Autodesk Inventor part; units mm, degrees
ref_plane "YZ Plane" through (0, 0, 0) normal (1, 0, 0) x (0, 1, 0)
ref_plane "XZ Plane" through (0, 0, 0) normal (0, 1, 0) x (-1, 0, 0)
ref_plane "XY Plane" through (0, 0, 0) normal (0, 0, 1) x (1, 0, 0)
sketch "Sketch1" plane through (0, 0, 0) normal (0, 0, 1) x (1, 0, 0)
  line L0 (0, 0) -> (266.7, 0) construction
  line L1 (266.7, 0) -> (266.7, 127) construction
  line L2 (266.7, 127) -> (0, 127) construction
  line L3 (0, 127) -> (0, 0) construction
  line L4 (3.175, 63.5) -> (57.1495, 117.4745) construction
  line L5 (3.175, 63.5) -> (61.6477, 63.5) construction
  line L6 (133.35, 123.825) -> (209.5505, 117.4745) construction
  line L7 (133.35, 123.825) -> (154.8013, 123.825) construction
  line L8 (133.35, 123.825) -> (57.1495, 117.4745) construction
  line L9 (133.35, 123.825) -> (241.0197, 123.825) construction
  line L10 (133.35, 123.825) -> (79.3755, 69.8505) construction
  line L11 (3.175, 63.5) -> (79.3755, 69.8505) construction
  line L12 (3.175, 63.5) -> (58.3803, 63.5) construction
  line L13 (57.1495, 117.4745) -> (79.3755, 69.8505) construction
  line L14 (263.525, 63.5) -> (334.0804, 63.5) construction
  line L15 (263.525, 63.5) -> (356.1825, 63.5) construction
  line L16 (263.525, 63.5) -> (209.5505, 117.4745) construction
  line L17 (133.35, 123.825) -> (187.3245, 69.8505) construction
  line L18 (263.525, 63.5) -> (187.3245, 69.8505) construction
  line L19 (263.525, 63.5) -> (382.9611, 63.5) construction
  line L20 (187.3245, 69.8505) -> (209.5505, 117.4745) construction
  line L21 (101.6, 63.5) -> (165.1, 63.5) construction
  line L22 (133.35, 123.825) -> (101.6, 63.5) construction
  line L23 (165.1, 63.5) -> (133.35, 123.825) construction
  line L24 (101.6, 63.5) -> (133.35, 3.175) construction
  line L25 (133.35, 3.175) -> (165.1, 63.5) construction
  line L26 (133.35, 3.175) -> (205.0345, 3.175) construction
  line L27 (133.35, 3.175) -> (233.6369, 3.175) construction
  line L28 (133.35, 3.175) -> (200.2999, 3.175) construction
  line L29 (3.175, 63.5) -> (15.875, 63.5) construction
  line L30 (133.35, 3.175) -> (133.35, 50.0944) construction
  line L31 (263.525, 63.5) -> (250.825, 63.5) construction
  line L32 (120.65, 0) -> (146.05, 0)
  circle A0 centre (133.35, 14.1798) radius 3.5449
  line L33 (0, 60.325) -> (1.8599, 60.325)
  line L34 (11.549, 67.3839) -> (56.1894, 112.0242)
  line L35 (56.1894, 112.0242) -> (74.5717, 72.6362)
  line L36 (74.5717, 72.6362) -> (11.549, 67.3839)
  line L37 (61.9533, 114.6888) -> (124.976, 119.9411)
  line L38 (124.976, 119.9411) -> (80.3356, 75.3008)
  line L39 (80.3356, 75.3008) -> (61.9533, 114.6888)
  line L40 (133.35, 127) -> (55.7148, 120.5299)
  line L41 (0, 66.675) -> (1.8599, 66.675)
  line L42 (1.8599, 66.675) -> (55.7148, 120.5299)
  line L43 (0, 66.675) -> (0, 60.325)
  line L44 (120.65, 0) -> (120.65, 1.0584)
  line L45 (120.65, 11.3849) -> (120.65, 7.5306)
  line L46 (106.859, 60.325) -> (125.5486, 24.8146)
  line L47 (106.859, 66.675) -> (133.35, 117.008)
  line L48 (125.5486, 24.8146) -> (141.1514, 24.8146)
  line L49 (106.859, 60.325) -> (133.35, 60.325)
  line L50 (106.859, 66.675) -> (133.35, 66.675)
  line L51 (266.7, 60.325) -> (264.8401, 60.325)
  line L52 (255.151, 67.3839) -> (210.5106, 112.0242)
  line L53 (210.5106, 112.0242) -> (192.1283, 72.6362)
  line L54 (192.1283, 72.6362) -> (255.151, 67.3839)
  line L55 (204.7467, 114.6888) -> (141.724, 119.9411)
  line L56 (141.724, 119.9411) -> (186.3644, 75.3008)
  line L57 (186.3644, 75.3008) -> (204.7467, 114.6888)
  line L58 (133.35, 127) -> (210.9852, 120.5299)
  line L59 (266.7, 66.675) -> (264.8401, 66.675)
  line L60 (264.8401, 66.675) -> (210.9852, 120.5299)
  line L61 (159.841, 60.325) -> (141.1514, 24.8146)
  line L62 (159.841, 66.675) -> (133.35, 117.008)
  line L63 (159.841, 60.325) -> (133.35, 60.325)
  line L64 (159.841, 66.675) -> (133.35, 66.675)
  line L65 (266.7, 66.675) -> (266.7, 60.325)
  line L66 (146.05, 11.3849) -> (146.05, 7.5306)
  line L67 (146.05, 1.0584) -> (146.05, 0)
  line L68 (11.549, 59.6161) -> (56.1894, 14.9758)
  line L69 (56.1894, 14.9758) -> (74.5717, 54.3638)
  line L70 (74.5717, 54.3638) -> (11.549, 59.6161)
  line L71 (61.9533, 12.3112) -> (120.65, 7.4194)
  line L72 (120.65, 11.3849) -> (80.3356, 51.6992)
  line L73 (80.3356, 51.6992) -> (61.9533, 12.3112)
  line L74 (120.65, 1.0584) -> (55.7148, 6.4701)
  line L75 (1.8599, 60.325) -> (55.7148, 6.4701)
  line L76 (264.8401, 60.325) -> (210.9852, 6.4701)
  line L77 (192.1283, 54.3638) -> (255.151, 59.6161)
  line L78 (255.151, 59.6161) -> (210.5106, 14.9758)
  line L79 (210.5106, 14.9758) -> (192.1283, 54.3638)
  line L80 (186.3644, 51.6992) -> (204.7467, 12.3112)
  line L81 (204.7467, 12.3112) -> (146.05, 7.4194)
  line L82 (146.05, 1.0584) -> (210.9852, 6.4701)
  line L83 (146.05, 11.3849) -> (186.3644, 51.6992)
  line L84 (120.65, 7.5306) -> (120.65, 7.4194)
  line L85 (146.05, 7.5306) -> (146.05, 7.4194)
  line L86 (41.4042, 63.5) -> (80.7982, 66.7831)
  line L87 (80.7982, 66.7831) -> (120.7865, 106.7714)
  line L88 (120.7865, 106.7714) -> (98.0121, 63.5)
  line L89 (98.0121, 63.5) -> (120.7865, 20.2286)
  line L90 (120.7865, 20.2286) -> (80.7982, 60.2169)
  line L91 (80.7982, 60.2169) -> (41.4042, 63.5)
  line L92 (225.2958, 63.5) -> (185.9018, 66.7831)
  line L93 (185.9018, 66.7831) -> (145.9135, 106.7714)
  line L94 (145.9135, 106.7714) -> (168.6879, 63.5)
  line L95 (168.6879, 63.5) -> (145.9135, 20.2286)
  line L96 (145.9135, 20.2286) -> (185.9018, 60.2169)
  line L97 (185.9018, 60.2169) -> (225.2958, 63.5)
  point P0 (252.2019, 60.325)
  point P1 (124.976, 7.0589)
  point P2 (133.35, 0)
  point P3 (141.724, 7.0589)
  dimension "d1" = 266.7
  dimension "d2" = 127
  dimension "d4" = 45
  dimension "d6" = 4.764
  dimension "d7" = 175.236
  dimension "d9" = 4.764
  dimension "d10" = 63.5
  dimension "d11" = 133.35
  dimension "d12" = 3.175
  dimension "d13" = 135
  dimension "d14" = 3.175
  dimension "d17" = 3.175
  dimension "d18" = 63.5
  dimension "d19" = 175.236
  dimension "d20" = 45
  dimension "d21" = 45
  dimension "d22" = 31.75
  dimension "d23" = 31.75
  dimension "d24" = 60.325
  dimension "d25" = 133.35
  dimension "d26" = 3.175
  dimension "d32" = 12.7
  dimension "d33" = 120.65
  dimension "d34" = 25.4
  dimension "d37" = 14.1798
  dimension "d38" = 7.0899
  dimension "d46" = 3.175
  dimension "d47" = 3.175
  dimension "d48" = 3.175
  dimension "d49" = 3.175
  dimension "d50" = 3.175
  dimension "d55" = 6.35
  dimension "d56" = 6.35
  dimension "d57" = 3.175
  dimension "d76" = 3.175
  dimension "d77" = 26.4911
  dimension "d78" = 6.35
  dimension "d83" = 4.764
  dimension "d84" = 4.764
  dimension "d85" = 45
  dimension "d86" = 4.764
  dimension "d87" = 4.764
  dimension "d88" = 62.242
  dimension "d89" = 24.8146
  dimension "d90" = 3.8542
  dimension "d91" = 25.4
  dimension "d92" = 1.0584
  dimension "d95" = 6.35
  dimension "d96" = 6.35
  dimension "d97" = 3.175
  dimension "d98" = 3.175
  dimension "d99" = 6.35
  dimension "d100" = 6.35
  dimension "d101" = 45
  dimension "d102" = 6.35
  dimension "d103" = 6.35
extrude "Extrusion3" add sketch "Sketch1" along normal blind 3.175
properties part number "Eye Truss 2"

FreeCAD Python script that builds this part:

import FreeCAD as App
import Part
import Sketcher

V = App.Vector
Q = App.Units.Quantity


def add_polygon(sketch, points):
    """Adds a closed chain of lines whose ends are joined by coincident constraints."""
    first, n = sketch.GeometryCount, len(points)
    for a, b in zip(points, points[1:] + points[:1]):
        sketch.addGeometry(Part.LineSegment(App.Vector(*a, 0), App.Vector(*b, 0)), False)
    for i in range(n):
        sketch.addConstraint(Sketcher.Constraint("Coincident", first + i, 2, first + (i + 1) % n, 1))

doc = App.newDocument("Part")
body = doc.addObject("PartDesign::Body", "Body")

sketch1 = body.newObject("Sketcher::SketchObject", "Sketch")
sketch1.AttachmentSupport = (doc.getObject("XY_Plane"), [""])
sketch1.MapMode = "FlatFace"
add_polygon(sketch1, [(120.7, 1.1), (120.7, 0), (146.1, 0), (146.1, 1.1), (211, 6.5), (264.8, 60.3), (266.7, 60.3), (266.7, 66.7), (264.8, 66.7), (211, 120.5), (133.3, 127), (55.7, 120.5), (1.9, 66.7), (0, 66.7), (0, 60.3), (1.9, 60.3), (55.7, 6.5)])
add_polygon(sketch1, [(80.3, 51.7), (120.7, 11.4), (120.7, 7.4), (62, 12.3)])
add_polygon(sketch1, [(56.2, 15), (11.5, 59.6), (74.6, 54.4)])
sketch1.addGeometry(Part.Circle(V(133.3, 14.2, 0), V(0, 0, 1), 3.5), False)
add_polygon(sketch1, [(146.1, 7.4), (146.1, 11.4), (186.4, 51.7), (204.7, 12.3)])
add_polygon(sketch1, [(125.5, 24.8), (106.9, 60.3), (159.8, 60.3), (141.2, 24.8)])
add_polygon(sketch1, [(210.5, 15), (192.1, 54.4), (255.2, 59.6)])
add_polygon(sketch1, [(74.6, 72.6), (11.5, 67.4), (56.2, 112)])
add_polygon(sketch1, [(80.8, 60.2), (41.4, 63.5), (80.8, 66.8), (120.8, 106.8), (98, 63.5), (120.8, 20.2)])
add_polygon(sketch1, [(80.3, 75.3), (62, 114.7), (125, 119.9)])
add_polygon(sketch1, [(185.9, 66.8), (225.3, 63.5), (185.9, 60.2), (145.9, 20.2), (168.7, 63.5), (145.9, 106.8)])
add_polygon(sketch1, [(159.8, 66.7), (106.9, 66.7), (133.3, 117)])
add_polygon(sketch1, [(210.5, 112), (255.2, 67.4), (192.1, 72.6)])
add_polygon(sketch1, [(141.7, 119.9), (204.7, 114.7), (186.4, 75.3)])
sketch1.addConstraint(Sketcher.Constraint("Vertical", 0))
sketch1.addConstraint(Sketcher.Constraint("Horizontal", 1))
sketch1.addConstraint(Sketcher.Constraint("Vertical", 2))
sketch1.addConstraint(Sketcher.Constraint("Horizontal", 5))
sketch1.addConstraint(Sketcher.Constraint("Vertical", 6))
sketch1.addConstraint(Sketcher.Constraint("Horizontal", 7))
sketch1.addConstraint(Sketcher.Constraint("Horizontal", 12))
sketch1.addConstraint(Sketcher.Constraint("Vertical", 13))
sketch1.addConstraint(Sketcher.Constraint("Horizontal", 14))
sketch1.addConstraint(Sketcher.Constraint("Vertical", 18))
sketch1.addConstraint(Sketcher.Constraint("Vertical", 25))
sketch1.addConstraint(Sketcher.Constraint("Horizontal", 30))
sketch1.addConstraint(Sketcher.Constraint("Horizontal", 32))
sketch1.addConstraint(Sketcher.Constraint("Horizontal", 54))
sketch1.addConstraint(Sketcher.Constraint("PointOnObject", 0, 2, -1))
sketch1.addConstraint(Sketcher.Constraint("PointOnObject", 12, 2, -2))
sketch1.addConstraint(Sketcher.Constraint("Perpendicular", 4, 8))
sketch1.addConstraint(Sketcher.Constraint("Parallel", 3, 10))
sketch1.addConstraint(Sketcher.Constraint("Perpendicular", 8, 11))
sketch1.addConstraint(Sketcher.Constraint("Perpendicular", 11, 15))
sketch1.addConstraint(Sketcher.Constraint("Parallel", 9, 16))
sketch1.addConstraint(Sketcher.Constraint("Parallel", 15, 17))
sketch1.addConstraint(Sketcher.Constraint("Parallel", 16, 19))
sketch1.addConstraint(Sketcher.Constraint("Parallel", 17, 21))
sketch1.addConstraint(Sketcher.Constraint("Parallel", 19, 22))
sketch1.addConstraint(Sketcher.Constraint("Parallel", 20, 23))
sketch1.addConstraint(Sketcher.Constraint("Perpendicular", 21, 26))
sketch1.addConstraint(Sketcher.Constraint("Parallel", 10, 28))
sketch1.addConstraint(Sketcher.Constraint("Parallel", 27, 33))
sketch1.addConstraint(Sketcher.Constraint("Parallel", 28, 34))
sketch1.addConstraint(Sketcher.Constraint("Parallel", 26, 35))
sketch1.addConstraint(Sketcher.Constraint("Parallel", 34, 36))
sketch1.addConstraint(Sketcher.Constraint("Parallel", 35, 37))
sketch1.addConstraint(Sketcher.Constraint("Parallel", 33, 38))
sketch1.addConstraint(Sketcher.Constraint("Parallel", 22, 39))
sketch1.addConstraint(Sketcher.Constraint("Parallel", 36, 40))
sketch1.addConstraint(Sketcher.Constraint("Parallel", 37, 41))
sketch1.addConstraint(Sketcher.Constraint("Parallel", 31, 42))
sketch1.addConstraint(Sketcher.Constraint("Parallel", 29, 43))
sketch1.addConstraint(Sketcher.Constraint("Perpendicular", 41, 44))
sketch1.addConstraint(Sketcher.Constraint("Parallel", 38, 45))
sketch1.addConstraint(Sketcher.Constraint("Parallel", 40, 46))
sketch1.addConstraint(Sketcher.Constraint("Perpendicular", 44, 47))
sketch1.addConstraint(Sketcher.Constraint("Parallel", 39, 48))
sketch1.addConstraint(Sketcher.Constraint("Parallel", 46, 49))
sketch1.addConstraint(Sketcher.Constraint("Parallel", 47, 50))
sketch1.addConstraint(Sketcher.Constraint("Parallel", 42, 51))
sketch1.addConstraint(Sketcher.Constraint("Parallel", 43, 52))
sketch1.addConstraint(Sketcher.Constraint("Perpendicular", 50, 53))
sketch1.addConstraint(Sketcher.Constraint("Parallel", 51, 55))
sketch1.addConstraint(Sketcher.Constraint("Parallel", 52, 56))
sketch1.addConstraint(Sketcher.Constraint("Parallel", 53, 57))
sketch1.addConstraint(Sketcher.Constraint("Parallel", 48, 58))
sketch1.addConstraint(Sketcher.Constraint("Parallel", 23, 59))
sketch1.addConstraint(Sketcher.Constraint("Parallel", 58, 60))
sketch1.addConstraint(Sketcher.Constraint("Parallel", 59, 61))
sketch1.addConstraint(Sketcher.Constraint("Parallel", 57, 62))
sketch1.addConstraint(Sketcher.Constraint("Horizontal", 8, 2, 10, 2))
sketch1.addConstraint(Sketcher.Constraint("Horizontal", 7, 2, 11, 2))
sketch1.addConstraint(Sketcher.Constraint("Horizontal", 5, 2, 13, 2))
sketch1.addConstraint(Sketcher.Constraint("Horizontal", 3, 2, 15, 2))
sketch1.addConstraint(Sketcher.Constraint("Horizontal", 2, 2, 16, 2))
sketch1.addConstraint(Sketcher.Constraint("Horizontal", 17, 2, 25, 2))
sketch1.addConstraint(Sketcher.Constraint("Horizontal", 20, 2, 26, 2))
sketch1.addConstraint(Sketcher.Constraint("Horizontal", 19, 2, 27, 2))
sketch1.addConstraint(Sketcher.Constraint("Horizontal", 18, 2, 28, 2))
sketch1.addConstraint(Sketcher.Constraint("Horizontal", 14, 2, 29, 2))
sketch1.addConstraint(Sketcher.Constraint("Horizontal", 22, 2, 33, 2))
sketch1.addConstraint(Sketcher.Constraint("Horizontal", 21, 2, 34, 2))
sketch1.addConstraint(Sketcher.Constraint("Horizontal", 23, 2, 35, 2))
sketch1.addConstraint(Sketcher.Constraint("Horizontal", 39, 2, 42, 2))
sketch1.addConstraint(Sketcher.Constraint("Horizontal", 42, 2, 48, 2))
sketch1.addConstraint(Sketcher.Constraint("Horizontal", 44, 2, 49, 2))
sketch1.addConstraint(Sketcher.Constraint("Horizontal", 43, 2, 50, 2))
sketch1.addConstraint(Sketcher.Constraint("Horizontal", 48, 2, 51, 2))
sketch1.addConstraint(Sketcher.Constraint("Horizontal", 41, 2, 52, 2))
sketch1.addConstraint(Sketcher.Constraint("Horizontal", 40, 2, 53, 2))
sketch1.addConstraint(Sketcher.Constraint("Horizontal", 12, 2, 54, 2))
sketch1.addConstraint(Sketcher.Constraint("Horizontal", 36, 2, 57, 2))
sketch1.addConstraint(Sketcher.Constraint("Horizontal", 38, 2, 58, 2))
sketch1.addConstraint(Sketcher.Constraint("Horizontal", 45, 2, 60, 2))
sketch1.addConstraint(Sketcher.Constraint("Horizontal", 47, 2, 61, 2))
sketch1.addConstraint(Sketcher.Constraint("Vertical", 4, 2, 7, 2))
sketch1.addConstraint(Sketcher.Constraint("Vertical", 3, 2, 8, 2))
sketch1.addConstraint(Sketcher.Constraint("Vertical", 24, 3, 9, 2))
sketch1.addConstraint(Sketcher.Constraint("Vertical", 11, 2, 14, 2))
sketch1.addConstraint(Sketcher.Constraint("Vertical", 10, 2, 15, 2))
sketch1.addConstraint(Sketcher.Constraint("Vertical", 16, 2, 17, 2))
sketch1.addConstraint(Sketcher.Constraint("Vertical", 2, 2, 25, 2))
sketch1.addConstraint(Sketcher.Constraint("Vertical", 21, 2, 36, 2))
sketch1.addConstraint(Sketcher.Constraint("Vertical", 23, 2, 37, 2))
sketch1.addConstraint(Sketcher.Constraint("Vertical", 41, 2, 43, 2))
sketch1.addConstraint(Sketcher.Constraint("Vertical", 19, 2, 45, 2))
sketch1.addConstraint(Sketcher.Constraint("Vertical", 20, 2, 47, 2))
sketch1.addConstraint(Sketcher.Constraint("Vertical", 29, 2, 54, 2))
sketch1.addConstraint(Sketcher.Constraint("Vertical", 9, 2, 55, 2))
sketch1.addConstraint(Sketcher.Constraint("Vertical", 30, 2, 56, 2))
sketch1.addConstraint(Sketcher.Constraint("Vertical", 34, 2, 57, 2))
sketch1.addConstraint(Sketcher.Constraint("Vertical", 27, 2, 60, 2))
sketch1.addConstraint(Sketcher.Constraint("Equal", 7, 12))
sketch1.addConstraint(Sketcher.Constraint("Equal", 20, 23))
sketch1.addConstraint(Sketcher.Constraint("DistanceX", 1, 1, 1, 2, Q("1 in")))
sketch1.addConstraint(Sketcher.Constraint("DistanceY", -1, 1, 9, 2, Q("5 in")))
sketch1.addConstraint(Sketcher.Constraint("DistanceY", 6, 1, 6, 2, Q("0.25 in")))
sketch1.addConstraint(Sketcher.Constraint("DistanceX", -1, 1, 5, 2, Q("10.5 in")))
sketch1.addConstraint(Sketcher.Constraint("DistanceY", -1, 1, 39, 2, Q("2.5 in")))
sketch1.addConstraint(Sketcher.Constraint("Diameter", 24, 7.0898))
sketch1.addConstraint(Sketcher.Constraint("DistanceY", -1, 1, 4, 2, Q("2.375 in")))
sketch1.addConstraint(Sketcher.Constraint("DistanceY", 0, 2, 0, 1, 1.0584))
sketch1.addConstraint(Sketcher.Constraint("DistanceY", -1, 1, 24, 3, 14.1798))
sketch1.addConstraint(Sketcher.Constraint("DistanceY", -1, 1, 31, 2, 24.8146))
sketch1.addConstraint(Sketcher.Constraint("DistanceX", 30, 1, 30, 2, Q("2.0859 in")))
sketch1.addConstraint(Sketcher.Constraint("Distance", 9, Q("3.0671 in")))
sketch1.addConstraint(Sketcher.Constraint("Distance", 17, Q("2.2446 in")))
sketch1.addConstraint(Sketcher.Constraint("Distance", 19, Q("2.3189 in")))
sketch1.addConstraint(Sketcher.Constraint("Distance", 22, Q("2.4898 in")))
sketch1.addConstraint(Sketcher.Constraint("DistanceX", 32, 2, 32, 1, 15.6028))
sketch1.addConstraint(Sketcher.Constraint("DistanceY", -1, 1, 18, 2, Q("0.2921 in")))
sketch1.addConstraint(Sketcher.Constraint("DistanceY", -1, 1, 21, 2, Q("2.3471 in")))
sketch1.addConstraint(Sketcher.Constraint("DistanceX", -1, 1, 22, 2, Q("2.9359 in")))
sketch1.addConstraint(Sketcher.Constraint("DistanceX", -1, 1, 33, 2, Q("7.5641 in")))
sketch1.addConstraint(Sketcher.Constraint("DistanceY", -1, 1, 36, 2, Q("2.6529 in")))
sketch1.addConstraint(Sketcher.Constraint("DistanceY", -1, 1, 41, 2, Q("4.2036 in")))
sketch1.addConstraint(Sketcher.Constraint("DistanceY", -1, 1, 45, 2, Q("4.5153 in")))
sketch1.addConstraint(Sketcher.Constraint("Distance", 39, 39.5306))
sketch1.addConstraint(Sketcher.Constraint("DistanceX", -1, 1, 39, 2, 41.4042))
sketch1.addConstraint(Sketcher.Constraint("DistanceX", -1, 1, 48, 2, 225.2958))
pad1 = body.newObject("PartDesign::Pad", "Pad")
pad1.Profile = sketch1
pad1.Length = Q("0.125 in")

doc.recompute()
